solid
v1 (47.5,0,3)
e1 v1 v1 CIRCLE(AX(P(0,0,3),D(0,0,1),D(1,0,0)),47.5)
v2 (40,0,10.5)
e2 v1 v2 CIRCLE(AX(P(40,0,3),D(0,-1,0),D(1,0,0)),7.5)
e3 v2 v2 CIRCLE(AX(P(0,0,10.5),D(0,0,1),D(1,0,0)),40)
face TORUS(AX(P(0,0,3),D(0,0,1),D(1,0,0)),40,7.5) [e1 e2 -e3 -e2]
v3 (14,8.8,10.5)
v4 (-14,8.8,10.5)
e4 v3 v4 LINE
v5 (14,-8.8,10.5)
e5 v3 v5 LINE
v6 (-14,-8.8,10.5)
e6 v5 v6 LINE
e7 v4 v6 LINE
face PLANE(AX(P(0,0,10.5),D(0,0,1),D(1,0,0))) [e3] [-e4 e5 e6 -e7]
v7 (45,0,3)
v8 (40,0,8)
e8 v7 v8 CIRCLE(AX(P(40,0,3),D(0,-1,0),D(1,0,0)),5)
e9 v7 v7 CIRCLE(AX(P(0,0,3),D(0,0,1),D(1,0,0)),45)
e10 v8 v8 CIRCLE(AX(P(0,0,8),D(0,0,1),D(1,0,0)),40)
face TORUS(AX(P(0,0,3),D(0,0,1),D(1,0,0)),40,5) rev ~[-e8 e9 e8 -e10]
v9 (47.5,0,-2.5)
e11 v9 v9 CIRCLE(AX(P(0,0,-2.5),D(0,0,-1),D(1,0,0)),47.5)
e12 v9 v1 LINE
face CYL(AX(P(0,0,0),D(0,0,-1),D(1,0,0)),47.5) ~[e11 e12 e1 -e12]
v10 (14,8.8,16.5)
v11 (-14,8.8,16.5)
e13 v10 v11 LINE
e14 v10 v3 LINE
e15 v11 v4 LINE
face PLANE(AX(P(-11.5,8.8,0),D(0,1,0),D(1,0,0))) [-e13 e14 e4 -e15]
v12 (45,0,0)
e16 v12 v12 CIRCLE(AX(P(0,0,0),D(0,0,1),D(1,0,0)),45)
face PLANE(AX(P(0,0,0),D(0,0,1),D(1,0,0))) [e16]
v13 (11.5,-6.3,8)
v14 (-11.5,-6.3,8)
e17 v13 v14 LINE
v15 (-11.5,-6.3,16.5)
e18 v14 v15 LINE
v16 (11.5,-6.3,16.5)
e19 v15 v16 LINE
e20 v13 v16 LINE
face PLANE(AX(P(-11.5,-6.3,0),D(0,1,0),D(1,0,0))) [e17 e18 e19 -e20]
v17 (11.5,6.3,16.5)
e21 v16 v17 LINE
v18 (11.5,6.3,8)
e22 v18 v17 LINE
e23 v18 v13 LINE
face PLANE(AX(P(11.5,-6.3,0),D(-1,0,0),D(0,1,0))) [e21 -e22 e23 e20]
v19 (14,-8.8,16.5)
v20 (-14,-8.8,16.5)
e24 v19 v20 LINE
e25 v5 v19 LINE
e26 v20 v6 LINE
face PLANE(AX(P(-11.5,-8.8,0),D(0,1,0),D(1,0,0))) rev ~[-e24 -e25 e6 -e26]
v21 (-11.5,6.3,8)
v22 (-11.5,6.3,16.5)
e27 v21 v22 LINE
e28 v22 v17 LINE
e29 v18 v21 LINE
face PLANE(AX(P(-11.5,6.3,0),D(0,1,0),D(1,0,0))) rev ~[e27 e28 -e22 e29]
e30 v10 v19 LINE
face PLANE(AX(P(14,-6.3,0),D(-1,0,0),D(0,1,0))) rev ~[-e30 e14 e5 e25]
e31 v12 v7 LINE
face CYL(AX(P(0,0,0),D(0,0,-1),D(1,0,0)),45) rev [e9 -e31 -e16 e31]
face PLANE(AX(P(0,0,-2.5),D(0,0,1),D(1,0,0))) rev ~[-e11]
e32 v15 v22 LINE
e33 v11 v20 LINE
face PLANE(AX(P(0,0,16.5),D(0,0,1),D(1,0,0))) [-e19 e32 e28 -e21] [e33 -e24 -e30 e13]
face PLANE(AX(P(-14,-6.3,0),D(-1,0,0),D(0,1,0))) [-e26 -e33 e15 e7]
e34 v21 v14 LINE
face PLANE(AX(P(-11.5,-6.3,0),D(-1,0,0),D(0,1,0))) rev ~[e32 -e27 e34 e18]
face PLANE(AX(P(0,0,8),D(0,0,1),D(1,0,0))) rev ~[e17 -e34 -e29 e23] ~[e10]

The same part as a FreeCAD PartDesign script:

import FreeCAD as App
import Part
import Sketcher
Q = App.Units.Quantity


def edges_at(feature, points):
    """Names of the edges that pass closest to the given points."""
    edges = feature.Shape.Edges
    near = lambda p: min(range(len(edges)), key=lambda i: edges[i].distToShape(Part.Vertex(*p))[0])
    return sorted({f"Edge{near(p) + 1}" for p in points})


def faces_at(feature, points):
    """Names of the faces that lie closest to the given points."""
    faces = feature.Shape.Faces
    near = lambda p: min(range(len(faces)), key=lambda i: faces[i].distToShape(Part.Vertex(*p))[0])
    return sorted({f"Face{near(p) + 1}" for p in points})

doc = App.newDocument("Part")
body = doc.addObject("PartDesign::Body", "Body")

sketch1 = body.newObject("Sketcher::SketchObject", "Sketch")
sketch1.AttachmentSupport = (doc.getObject("XY_Plane"), [""])
sketch1.MapMode = "FlatFace"
sketch1.addGeometry(Part.Circle(App.Vector(0, 0, 0), App.Vector(0, 0, 1), 45), False)
sketch1.addConstraint([
    Sketcher.Constraint("Coincident", 0, 3, -1, 1),
    Sketcher.Constraint("Diameter", 0, Q("90 mm")),
])
pad1 = body.newObject("PartDesign::Pad", "Pad")
pad1.Profile = sketch1
pad1.Length = 8
doc.recompute()

fillet = body.newObject("PartDesign::Fillet", "Fillet")
fillet.Base = (pad1, edges_at(pad1, [(-45, 0, 8)]))
fillet.Radius = 5

sketch2 = body.newObject("Sketcher::SketchObject", "Sketch001")
sketch2.AttachmentSupport = (doc.getObject("XY_Plane"), [""])
sketch2.MapMode = "FlatFace"
sketch2.addGeometry([
    Part.LineSegment(App.Vector(-12, 6, 0), App.Vector(-12, -6, 0)),
    Part.LineSegment(App.Vector(-12, -6, 0), App.Vector(12, -6, 0)),
    Part.LineSegment(App.Vector(12, -6, 0), App.Vector(12, 6, 0)),
    Part.LineSegment(App.Vector(12, 6, 0), App.Vector(-12, 6, 0)),
], False)
sketch2.addConstraint([
    Sketcher.Constraint("Coincident", 0, 2, 1, 1),
    Sketcher.Constraint("Coincident", 1, 2, 2, 1),
    Sketcher.Constraint("Coincident", 2, 2, 3, 1),
    Sketcher.Constraint("Coincident", 3, 2, 0, 1),
    Sketcher.Constraint("Vertical", 0),
    Sketcher.Constraint("Horizontal", 1),
    Sketcher.Constraint("Vertical", 2),
    Sketcher.Constraint("Horizontal", 3),
    Sketcher.Constraint("Symmetric", 0, 2, 2, 2, -1, 1),
    Sketcher.Constraint("DistanceX", 1, 1, 1, 2, Q("23 mm")),
    Sketcher.Constraint("DistanceY", 0, 2, 0, 1, Q("12.6 mm")),
])
pad2 = body.newObject("PartDesign::Pad", "Pad001")
pad2.Profile = sketch2
pad2.Length = 16.5
doc.recompute()

thickness = body.newObject("PartDesign::Thickness", "Thickness")
thickness.Base = (pad2, faces_at(pad2, [(0, 0, 16.5)]))
thickness.Value = 2.5
thickness.Reversed = False
thickness.Join = "Intersection"

doc.recompute()
